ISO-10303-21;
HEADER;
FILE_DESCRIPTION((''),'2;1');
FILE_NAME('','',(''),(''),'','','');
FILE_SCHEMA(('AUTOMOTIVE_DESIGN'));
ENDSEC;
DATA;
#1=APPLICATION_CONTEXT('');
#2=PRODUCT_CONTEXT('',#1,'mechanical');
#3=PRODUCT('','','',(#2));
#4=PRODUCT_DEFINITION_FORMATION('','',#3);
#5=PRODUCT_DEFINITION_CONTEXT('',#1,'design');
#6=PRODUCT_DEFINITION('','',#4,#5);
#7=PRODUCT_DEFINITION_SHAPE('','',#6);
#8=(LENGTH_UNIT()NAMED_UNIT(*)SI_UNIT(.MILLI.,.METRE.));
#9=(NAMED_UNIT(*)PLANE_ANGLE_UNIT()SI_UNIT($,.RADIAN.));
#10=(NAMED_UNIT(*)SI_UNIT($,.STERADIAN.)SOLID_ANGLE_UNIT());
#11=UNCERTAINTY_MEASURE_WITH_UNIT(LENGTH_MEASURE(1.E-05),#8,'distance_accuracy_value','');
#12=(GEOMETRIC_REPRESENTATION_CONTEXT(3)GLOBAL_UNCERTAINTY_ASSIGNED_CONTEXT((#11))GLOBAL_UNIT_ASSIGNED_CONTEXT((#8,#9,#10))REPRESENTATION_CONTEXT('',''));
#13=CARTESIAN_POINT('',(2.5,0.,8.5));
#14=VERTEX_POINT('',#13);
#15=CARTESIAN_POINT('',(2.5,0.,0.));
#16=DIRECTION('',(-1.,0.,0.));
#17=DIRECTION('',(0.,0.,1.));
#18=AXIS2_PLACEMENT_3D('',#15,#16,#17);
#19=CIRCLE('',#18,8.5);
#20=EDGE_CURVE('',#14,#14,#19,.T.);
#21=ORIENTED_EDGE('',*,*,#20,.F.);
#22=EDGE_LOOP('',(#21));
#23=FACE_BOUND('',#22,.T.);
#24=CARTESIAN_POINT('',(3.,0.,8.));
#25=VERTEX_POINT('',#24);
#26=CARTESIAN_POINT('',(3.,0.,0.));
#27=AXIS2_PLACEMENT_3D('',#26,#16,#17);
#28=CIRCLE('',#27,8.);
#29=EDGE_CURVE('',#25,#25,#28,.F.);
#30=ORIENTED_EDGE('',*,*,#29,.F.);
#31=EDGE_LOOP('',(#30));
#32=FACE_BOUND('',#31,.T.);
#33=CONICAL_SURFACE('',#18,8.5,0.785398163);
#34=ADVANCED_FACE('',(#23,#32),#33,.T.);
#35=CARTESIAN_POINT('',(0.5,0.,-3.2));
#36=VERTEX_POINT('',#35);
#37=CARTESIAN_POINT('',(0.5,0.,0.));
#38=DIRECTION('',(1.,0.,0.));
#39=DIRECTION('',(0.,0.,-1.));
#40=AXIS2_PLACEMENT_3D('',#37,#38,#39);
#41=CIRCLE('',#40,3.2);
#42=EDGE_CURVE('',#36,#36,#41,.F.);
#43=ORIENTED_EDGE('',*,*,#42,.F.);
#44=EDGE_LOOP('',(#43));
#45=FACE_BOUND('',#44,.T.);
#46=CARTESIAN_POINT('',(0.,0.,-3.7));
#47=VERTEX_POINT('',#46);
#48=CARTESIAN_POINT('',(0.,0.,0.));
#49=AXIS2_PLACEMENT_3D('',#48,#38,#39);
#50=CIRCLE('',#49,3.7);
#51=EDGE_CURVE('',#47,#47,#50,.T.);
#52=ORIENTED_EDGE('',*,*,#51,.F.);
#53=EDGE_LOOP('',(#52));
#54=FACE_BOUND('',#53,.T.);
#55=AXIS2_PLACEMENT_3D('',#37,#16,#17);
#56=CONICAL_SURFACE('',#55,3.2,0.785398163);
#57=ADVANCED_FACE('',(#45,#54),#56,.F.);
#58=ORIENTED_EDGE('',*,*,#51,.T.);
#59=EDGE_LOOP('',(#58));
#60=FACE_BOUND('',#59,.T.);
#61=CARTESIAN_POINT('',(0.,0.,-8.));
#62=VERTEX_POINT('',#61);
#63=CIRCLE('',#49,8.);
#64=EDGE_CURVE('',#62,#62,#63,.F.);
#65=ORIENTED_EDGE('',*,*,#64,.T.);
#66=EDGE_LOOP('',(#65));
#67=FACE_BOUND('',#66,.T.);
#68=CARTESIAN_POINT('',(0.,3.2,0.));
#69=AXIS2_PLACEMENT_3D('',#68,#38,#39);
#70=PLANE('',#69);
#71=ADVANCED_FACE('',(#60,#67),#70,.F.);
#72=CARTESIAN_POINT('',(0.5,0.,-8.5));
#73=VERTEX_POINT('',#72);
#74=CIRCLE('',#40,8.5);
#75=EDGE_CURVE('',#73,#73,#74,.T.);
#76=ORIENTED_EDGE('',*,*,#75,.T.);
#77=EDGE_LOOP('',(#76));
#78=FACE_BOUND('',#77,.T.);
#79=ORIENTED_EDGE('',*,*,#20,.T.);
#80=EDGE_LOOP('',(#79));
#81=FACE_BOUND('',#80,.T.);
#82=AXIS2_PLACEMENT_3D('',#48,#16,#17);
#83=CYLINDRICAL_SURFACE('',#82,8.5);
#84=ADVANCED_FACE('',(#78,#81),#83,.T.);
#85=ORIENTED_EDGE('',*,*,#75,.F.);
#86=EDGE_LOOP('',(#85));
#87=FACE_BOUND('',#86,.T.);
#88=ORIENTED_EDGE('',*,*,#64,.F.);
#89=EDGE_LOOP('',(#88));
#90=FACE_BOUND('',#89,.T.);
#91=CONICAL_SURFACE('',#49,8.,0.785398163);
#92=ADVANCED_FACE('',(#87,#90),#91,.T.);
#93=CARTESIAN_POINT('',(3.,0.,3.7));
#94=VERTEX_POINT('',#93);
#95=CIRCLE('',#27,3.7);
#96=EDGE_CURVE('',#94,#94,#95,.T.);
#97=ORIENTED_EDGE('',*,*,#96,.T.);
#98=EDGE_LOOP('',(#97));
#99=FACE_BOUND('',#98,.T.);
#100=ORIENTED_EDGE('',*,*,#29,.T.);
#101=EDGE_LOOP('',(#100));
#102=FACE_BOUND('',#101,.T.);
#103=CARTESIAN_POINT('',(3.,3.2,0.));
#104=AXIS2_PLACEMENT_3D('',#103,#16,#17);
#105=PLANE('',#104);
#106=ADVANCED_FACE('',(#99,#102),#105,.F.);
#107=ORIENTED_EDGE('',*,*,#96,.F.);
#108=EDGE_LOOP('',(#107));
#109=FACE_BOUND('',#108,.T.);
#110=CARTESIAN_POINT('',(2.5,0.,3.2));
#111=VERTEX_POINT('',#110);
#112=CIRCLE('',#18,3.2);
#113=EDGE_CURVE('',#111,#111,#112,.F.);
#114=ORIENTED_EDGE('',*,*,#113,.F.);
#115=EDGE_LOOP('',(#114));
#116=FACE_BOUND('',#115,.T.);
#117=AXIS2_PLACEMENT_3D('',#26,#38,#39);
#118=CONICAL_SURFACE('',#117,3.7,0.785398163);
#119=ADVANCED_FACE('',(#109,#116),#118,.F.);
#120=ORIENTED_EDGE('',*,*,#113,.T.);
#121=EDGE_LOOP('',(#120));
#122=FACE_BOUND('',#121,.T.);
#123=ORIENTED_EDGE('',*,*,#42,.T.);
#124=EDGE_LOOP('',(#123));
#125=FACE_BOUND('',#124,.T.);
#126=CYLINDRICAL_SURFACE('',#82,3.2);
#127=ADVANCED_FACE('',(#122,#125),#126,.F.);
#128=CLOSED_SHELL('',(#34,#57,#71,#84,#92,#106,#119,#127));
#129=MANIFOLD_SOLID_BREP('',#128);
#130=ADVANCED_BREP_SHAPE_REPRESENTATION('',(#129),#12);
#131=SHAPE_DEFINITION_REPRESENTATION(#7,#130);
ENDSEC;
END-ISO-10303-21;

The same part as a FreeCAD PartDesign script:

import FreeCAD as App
import Part
import Sketcher
from FreeCAD import Vector
Q = App.Units.Quantity


def edges_at(feature, points):
    """Names of the edges that pass closest to the given points."""
    edges = feature.Shape.Edges
    near = lambda p: min(range(len(edges)), key=lambda i: edges[i].distToShape(Part.Vertex(*p))[0])
    return sorted({f"Edge{near(p) + 1}" for p in points})


def add_polygon(sketch, points):
    """Adds a closed chain of lines whose ends are joined by coincident constraints."""
    first, n = sketch.GeometryCount, len(points)
    for a, b in zip(points, points[1:] + points[:1]):
        sketch.addGeometry(Part.LineSegment(App.Vector(*a, 0), App.Vector(*b, 0)), False)
    for i in range(n):
        sketch.addConstraint(Sketcher.Constraint("Coincident", first + i, 2, first + (i + 1) % n, 1))

doc = App.newDocument("Part")
body = doc.addObject("PartDesign::Body", "Body")

# Sketch on XY plane
sketch1 = body.newObject("Sketcher::SketchObject", "Sketch")
sketch1.AttachmentSupport = (doc.getObject("XY_Plane"), [""])
sketch1.MapMode = "FlatFace"
add_polygon(sketch1, [(0, 8.5), (0, 3.2), (3, 3.2), (3, 8.5)])  # lines 0-3
sketch1.addConstraint(Sketcher.Constraint("Vertical", 0))
sketch1.addConstraint(Sketcher.Constraint("Horizontal", 1))
sketch1.addConstraint(Sketcher.Constraint("Vertical", 2))
sketch1.addConstraint(Sketcher.Constraint("Horizontal", 3))
sketch1.addConstraint(Sketcher.Constraint("PointOnObject", 0, 2, -2))
sketch1.addConstraint(Sketcher.Constraint("DistanceX", 1, 1, 1, 2, Q("3 mm")))
sketch1.addConstraint(Sketcher.Constraint("DistanceY", 0, 2, 0, 1, Q("5.3 mm")))
sketch1.addConstraint(Sketcher.Constraint("DistanceY", -1, 1, 0, 2, Q("3.2 mm")))
revolution = body.newObject("PartDesign::Revolution", "Revolution")
revolution.Profile = sketch1
revolution.ReferenceAxis = (sketch1, ["H_Axis"])
revolution.Angle = 360
doc.recompute()

chamfer = body.newObject("PartDesign::Chamfer", "Chamfer")
chamfer.Base = (revolution, edges_at(revolution, [
    (0, 0, -3.2),
    (3, 0, -3.2),
    (3, 0, -8.5),
    (0, 0, -8.5),
]))
chamfer.Size = 0.5

doc.recompute()
